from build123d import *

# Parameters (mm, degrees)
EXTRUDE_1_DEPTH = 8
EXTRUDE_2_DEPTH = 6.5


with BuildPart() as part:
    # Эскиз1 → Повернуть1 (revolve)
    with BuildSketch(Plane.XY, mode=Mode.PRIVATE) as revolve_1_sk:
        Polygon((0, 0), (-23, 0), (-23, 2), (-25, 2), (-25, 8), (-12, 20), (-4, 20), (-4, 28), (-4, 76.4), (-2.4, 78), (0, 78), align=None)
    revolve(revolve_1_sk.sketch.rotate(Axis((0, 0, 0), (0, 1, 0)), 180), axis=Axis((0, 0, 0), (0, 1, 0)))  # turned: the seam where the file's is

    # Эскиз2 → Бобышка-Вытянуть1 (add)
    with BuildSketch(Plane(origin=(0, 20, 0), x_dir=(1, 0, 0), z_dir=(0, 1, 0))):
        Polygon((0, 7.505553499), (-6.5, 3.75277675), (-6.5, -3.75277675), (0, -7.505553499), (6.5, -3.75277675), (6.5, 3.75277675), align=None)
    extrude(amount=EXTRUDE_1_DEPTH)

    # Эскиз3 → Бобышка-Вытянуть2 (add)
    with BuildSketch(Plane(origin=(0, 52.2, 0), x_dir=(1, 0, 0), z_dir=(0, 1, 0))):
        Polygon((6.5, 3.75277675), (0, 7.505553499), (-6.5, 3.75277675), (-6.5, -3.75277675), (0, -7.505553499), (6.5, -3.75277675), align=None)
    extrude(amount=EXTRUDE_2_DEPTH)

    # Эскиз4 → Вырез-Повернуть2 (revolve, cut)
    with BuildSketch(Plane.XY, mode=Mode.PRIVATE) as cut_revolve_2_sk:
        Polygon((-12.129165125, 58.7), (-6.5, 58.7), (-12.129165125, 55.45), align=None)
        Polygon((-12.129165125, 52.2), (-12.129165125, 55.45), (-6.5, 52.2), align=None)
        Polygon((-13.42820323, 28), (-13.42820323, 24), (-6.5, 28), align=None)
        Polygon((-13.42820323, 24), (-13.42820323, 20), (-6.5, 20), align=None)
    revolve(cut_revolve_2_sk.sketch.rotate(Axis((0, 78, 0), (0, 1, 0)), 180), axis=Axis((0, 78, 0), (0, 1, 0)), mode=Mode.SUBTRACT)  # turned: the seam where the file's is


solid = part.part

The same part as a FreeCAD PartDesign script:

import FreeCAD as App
import Part
import Sketcher

V = App.Vector
Q = App.Units.Quantity


def add_polygon(sketch, points):
    """Adds a closed chain of lines whose ends are joined by coincident constraints."""
    first, n = sketch.GeometryCount, len(points)
    for a, b in zip(points, points[1:] + points[:1]):
        sketch.addGeometry(Part.LineSegment(App.Vector(*a, 0), App.Vector(*b, 0)), False)
    for i in range(n):
        sketch.addConstraint(Sketcher.Constraint("Coincident", first + i, 2, first + (i + 1) % n, 1))

doc = App.newDocument("Part")
params = doc.addObject("Spreadsheet::Sheet", "Params")
for row, (alias, value) in enumerate([
    ("sketch1_width", "23 mm"),
    ("sketch1_width2", "8 mm"),
    ("sketch1_width3", "2 mm"),
    ("sketch1_height", "78 mm"),
    ("sketch1_height2", "6 mm"),
    ("revolution_angle", "360 deg"),
    ("pad1_length", "8 mm"),
    ("pad2_length", "6.5 mm"),
    ("sketch4_height", "4 mm"),
    ("sketch4_length", "6.5 mm"),
    ("groove_angle", "360 deg"),
], start=1):
    params.set(f"A{row}", alias)
    params.set(f"B{row}", "=" + value)
    params.setAlias(f"B{row}", alias)

body = doc.addObject("PartDesign::Body", "Body")

# Sketch on XY plane
sketch1 = body.newObject("Sketcher::SketchObject", "Sketch")
sketch1.AttachmentSupport = (doc.getObject("XY_Plane"), [""])
sketch1.MapMode = "FlatFace"
add_polygon(sketch1, [(-23, 0), (0, 0), (0, 78), (-2.4, 78), (-4, 76.4), (-4, 20), (-12, 20), (-25, 8), (-25, 2), (-23, 2)])  # lines 0-9
sketch1.addConstraint(Sketcher.Constraint("Horizontal", 0))
sketch1.addConstraint(Sketcher.Constraint("Vertical", 1))
sketch1.addConstraint(Sketcher.Constraint("Horizontal", 2))
sketch1.addConstraint(Sketcher.Constraint("Vertical", 4))
sketch1.addConstraint(Sketcher.Constraint("Horizontal", 5))
sketch1.addConstraint(Sketcher.Constraint("Vertical", 7))
sketch1.addConstraint(Sketcher.Constraint("Horizontal", 8))
sketch1.addConstraint(Sketcher.Constraint("Vertical", 9))
sketch1.addConstraint(Sketcher.Constraint("Coincident", 0, 2, -1, 1))
sketch1.addConstraint(Sketcher.Constraint("Equal", 8, 9))
sketch1.addConstraint(Sketcher.Constraint("DistanceX", 0, 1, 0, 2, Q("23 mm")))
sketch1.addConstraint(Sketcher.Constraint("DistanceX", 5, 2, 5, 1, Q("8 mm")))
sketch1.addConstraint(Sketcher.Constraint("DistanceX", 8, 1, 8, 2, Q("2 mm")))
sketch1.addConstraint(Sketcher.Constraint("DistanceY", 1, 1, 1, 2, Q("78 mm")))
sketch1.addConstraint(Sketcher.Constraint("DistanceY", 7, 2, 7, 1, Q("6 mm")))
sketch1.addConstraint(Sketcher.Constraint("Angle", 3, Q("-135 deg")))
sketch1.addConstraint(Sketcher.Constraint("DistanceX", 2, 2, 2, 1, Q("2.4 mm")))
sketch1.addConstraint(Sketcher.Constraint("DistanceY", 4, 2, 4, 1, Q("56.4 mm")))
sketch1.addConstraint(Sketcher.Constraint("DistanceX", 3, 2, -1, 1, Q("4 mm")))
sketch1.setExpression("Constraints[20]", "Params.sketch1_width")
sketch1.setExpression("Constraints[21]", "Params.sketch1_width2")
sketch1.setExpression("Constraints[22]", "Params.sketch1_width3")
sketch1.setExpression("Constraints[23]", "Params.sketch1_height")
sketch1.setExpression("Constraints[24]", "Params.sketch1_height2")
revolution = body.newObject("PartDesign::Revolution", "Revolution")
revolution.Profile = sketch1
revolution.ReferenceAxis = (sketch1, ["V_Axis"])
revolution.setExpression("Angle", "Params.revolution_angle")

# Sketch on XZ plane
sketch2 = body.newObject("Sketcher::SketchObject", "Sketch001")
sketch2.AttachmentSupport = (doc.getObject("XZ_Plane"), [""])
sketch2.MapMode = "FlatFace"
sketch2.AttachmentOffset = App.Placement(V(0, 0, -20), App.Rotation())
add_polygon(sketch2, [(0, -8), (-6, -4), (-6, 4), (0, 8), (6, 4), (6, -4)])  # lines 0-5
sketch2.addConstraint(Sketcher.Constraint("Vertical", 1))
sketch2.addConstraint(Sketcher.Constraint("Vertical", 4))
sketch2.addConstraint(Sketcher.Constraint("Symmetric", 0, 2, 3, 2, -1, 1))
sketch2.addConstraint(Sketcher.Constraint("Symmetric", 2, 2, 5, 2, -1, 1))
sketch2.addConstraint(Sketcher.Constraint("PointOnObject", 2, 2, -2))
sketch2.addConstraint(Sketcher.Constraint("Parallel", 2, 5))
sketch2.addConstraint(Sketcher.Constraint("Horizontal", 1, 2, 3, 2))
sketch2.addConstraint(Sketcher.Constraint("Angle", 0, Q("150 deg")))
sketch2.addConstraint(Sketcher.Constraint("DistanceX", 1, 2, 3, 2, Q("13 mm")))
sketch2.addConstraint(Sketcher.Constraint("DistanceY", 1, 1, 1, 2, Q("7.505554 mm")))
pad1 = body.newObject("PartDesign::Pad", "Pad")
pad1.Profile = sketch2
pad1.setExpression("Length", "Params.pad1_length")
pad1.Reversed = True

# Sketch on XZ plane
sketch3 = body.newObject("Sketcher::SketchObject", "Sketch002")
sketch3.AttachmentSupport = (doc.getObject("XZ_Plane"), [""])
sketch3.MapMode = "FlatFace"
sketch3.AttachmentOffset = App.Placement(V(0, 0, -52.2), App.Rotation())
add_polygon(sketch3, [(6, -4), (0, -8), (-6, -4), (-6, 4), (0, 8), (6, 4)])  # lines 0-5
sketch3.addConstraint(Sketcher.Constraint("Vertical", 2))
sketch3.addConstraint(Sketcher.Constraint("Vertical", 5))
sketch3.addConstraint(Sketcher.Constraint("Symmetric", 0, 2, 3, 2, -1, 1))
sketch3.addConstraint(Sketcher.Constraint("Symmetric", 1, 2, 4, 2, -1, 1))
sketch3.addConstraint(Sketcher.Constraint("PointOnObject", 0, 2, -2))
sketch3.addConstraint(Sketcher.Constraint("Parallel", 0, 3))
sketch3.addConstraint(Sketcher.Constraint("Horizontal", 2, 2, 4, 2))
sketch3.addConstraint(Sketcher.Constraint("Angle", 0, Q("-150 deg")))
sketch3.addConstraint(Sketcher.Constraint("DistanceX", 2, 2, 4, 2, Q("13 mm")))
sketch3.addConstraint(Sketcher.Constraint("DistanceY", 2, 1, 2, 2, Q("7.505554 mm")))
pad2 = body.newObject("PartDesign::Pad", "Pad001")
pad2.Profile = sketch3
pad2.setExpression("Length", "Params.pad2_length")
pad2.Reversed = True

# Sketch on XY plane
sketch4 = body.newObject("Sketcher::SketchObject", "Sketch003")
sketch4.AttachmentSupport = (doc.getObject("XY_Plane"), [""])
sketch4.MapMode = "FlatFace"
add_polygon(sketch4, [(-6.5, 58.7), (-12.1, 58.7), (-12.1, 55.5)])  # lines 0-2
add_polygon(sketch4, [(-12.1, 55.5), (-12.1, 52.2), (-6.5, 52.2)])  # lines 3-5
add_polygon(sketch4, [(-13.4, 28), (-13.4, 24), (-6.5, 28)])  # lines 6-8
add_polygon(sketch4, [(-13.4, 24), (-13.4, 20), (-6.5, 20)])  # lines 9-11
sketch4.addConstraint(Sketcher.Constraint("Horizontal", 0))
sketch4.addConstraint(Sketcher.Constraint("Vertical", 1))
sketch4.addConstraint(Sketcher.Constraint("Vertical", 3))
sketch4.addConstraint(Sketcher.Constraint("Horizontal", 4))
sketch4.addConstraint(Sketcher.Constraint("Vertical", 6))
sketch4.addConstraint(Sketcher.Constraint("Horizontal", 8))
sketch4.addConstraint(Sketcher.Constraint("Vertical", 9))
sketch4.addConstraint(Sketcher.Constraint("Horizontal", 10))
sketch4.addConstraint(Sketcher.Constraint("Coincident", 5, 2, 1, 2))
sketch4.addConstraint(Sketcher.Constraint("Coincident", 11, 2, 6, 2))
sketch4.addConstraint(Sketcher.Constraint("Parallel", 2, 7))
sketch4.addConstraint(Sketcher.Constraint("Parallel", 5, 11))
sketch4.addConstraint(Sketcher.Constraint("Vertical", 2, 2, 4, 2))
sketch4.addConstraint(Sketcher.Constraint("Vertical", 4, 2, 7, 2))
sketch4.addConstraint(Sketcher.Constraint("Vertical", 7, 2, 10, 2))
sketch4.addConstraint(Sketcher.Constraint("Equal", 1, 3))
sketch4.addConstraint(Sketcher.Constraint("DistanceY", 6, 2, 6, 1, Q("4 mm")))
sketch4.addConstraint(Sketcher.Constraint("Angle", 2, Q("30 deg")))
sketch4.addConstraint(Sketcher.Constraint("DistanceY", -1, 1, 6, 2, Q("24 mm")))
sketch4.addConstraint(Sketcher.Constraint("Distance", 2, Q("6.5 mm")))
sketch4.addConstraint(Sketcher.Constraint("DistanceY", -1, 1, 0, 2, Q("58.7 mm")))
sketch4.addConstraint(Sketcher.Constraint("DistanceX", 2, 2, -1, 1, Q("6.5 mm")))
sketch4.setExpression("Constraints[28]", "Params.sketch4_height")
sketch4.setExpression("Constraints[31]", "Params.sketch4_length")
groove = body.newObject("PartDesign::Groove", "Groove")
groove.Profile = sketch4
groove.ReferenceAxis = (sketch4, ["V_Axis"])
groove.setExpression("Angle", "Params.groove_angle")

doc.recompute()
